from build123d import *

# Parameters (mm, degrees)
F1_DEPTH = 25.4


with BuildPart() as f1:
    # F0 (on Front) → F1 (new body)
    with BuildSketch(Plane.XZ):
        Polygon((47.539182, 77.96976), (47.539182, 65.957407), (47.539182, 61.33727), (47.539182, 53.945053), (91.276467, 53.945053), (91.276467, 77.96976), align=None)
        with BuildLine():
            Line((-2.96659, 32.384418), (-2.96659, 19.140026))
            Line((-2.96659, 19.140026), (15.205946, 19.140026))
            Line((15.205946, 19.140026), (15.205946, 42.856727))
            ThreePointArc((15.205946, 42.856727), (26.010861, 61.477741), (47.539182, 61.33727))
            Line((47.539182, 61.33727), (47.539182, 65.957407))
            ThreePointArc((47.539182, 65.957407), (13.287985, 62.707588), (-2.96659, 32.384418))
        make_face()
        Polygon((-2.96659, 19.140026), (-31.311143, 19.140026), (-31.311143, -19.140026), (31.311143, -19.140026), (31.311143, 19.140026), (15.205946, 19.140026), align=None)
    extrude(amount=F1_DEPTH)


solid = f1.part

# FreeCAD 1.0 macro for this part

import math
import FreeCAD as App
import Part
import Sketcher

V = App.Vector
Q = App.Units.Quantity

doc = App.newDocument("Part")
body = doc.addObject("PartDesign::Body", "Body")

# Sketch on XZ plane
sketch1 = body.newObject("Sketcher::SketchObject", "Sketch")
sketch1.AttachmentSupport = (doc.getObject("XZ_Plane"), [""])
sketch1.MapMode = "FlatFace"
sketch1.addGeometry([
    Part.LineSegment(V(48, 78, 0), V(48, 66, 0)),  # 0
    Part.ArcOfCircle(Part.Circle(V(33, 32, 0), V(0, 0, 1), 36), math.radians(67), math.radians(180)),  # 1
    Part.LineSegment(V(-3, 32, 0), V(-3, 19, 0)),  # 2
    Part.LineSegment(V(-3, 19, 0), V(-31, 19, 0)),  # 3
    Part.LineSegment(V(-31, 19, 0), V(-31, -19, 0)),  # 4
    Part.LineSegment(V(-31, -19, 0), V(31, -19, 0)),  # 5
    Part.LineSegment(V(31, -19, 0), V(31, 19, 0)),  # 6
    Part.LineSegment(V(31, 19, 0), V(15, 19, 0)),  # 7
    Part.LineSegment(V(15, 19, 0), V(15, 43, 0)),  # 8
    Part.ArcOfCircle(Part.Circle(V(37, 43, 0), V(0, 0, 1), 21), math.radians(60), math.radians(180)),  # 9
    Part.LineSegment(V(48, 61, 0), V(48, 54, 0)),  # 10
    Part.LineSegment(V(48, 54, 0), V(91, 54, 0)),  # 11
    Part.LineSegment(V(91, 54, 0), V(91, 78, 0)),  # 12
    Part.LineSegment(V(91, 78, 0), V(48, 78, 0)),  # 13
], False)
sketch1.addConstraint([
    Sketcher.Constraint("Coincident", 0, 2, 1, 1),
    Sketcher.Constraint("Tangent", 1, 2, 2, 1),
    Sketcher.Constraint("Coincident", 2, 2, 3, 1),
    Sketcher.Constraint("Coincident", 3, 2, 4, 1),
    Sketcher.Constraint("Coincident", 4, 2, 5, 1),
    Sketcher.Constraint("Coincident", 5, 2, 6, 1),
    Sketcher.Constraint("Coincident", 6, 2, 7, 1),
    Sketcher.Constraint("Coincident", 7, 2, 8, 1),
    Sketcher.Constraint("Tangent", 8, 2, 9, 2),
    Sketcher.Constraint("Coincident", 9, 1, 10, 1),
    Sketcher.Constraint("Coincident", 10, 2, 11, 1),
    Sketcher.Constraint("Coincident", 11, 2, 12, 1),
    Sketcher.Constraint("Coincident", 12, 2, 13, 1),
    Sketcher.Constraint("Coincident", 13, 2, 0, 1),
    Sketcher.Constraint("Vertical", 0),
    Sketcher.Constraint("Vertical", 2),
    Sketcher.Constraint("Horizontal", 3),
    Sketcher.Constraint("Vertical", 4),
    Sketcher.Constraint("Horizontal", 5),
    Sketcher.Constraint("Vertical", 6),
    Sketcher.Constraint("Horizontal", 7),
    Sketcher.Constraint("Vertical", 8),
    Sketcher.Constraint("Vertical", 10),
    Sketcher.Constraint("Horizontal", 11),
    Sketcher.Constraint("Vertical", 12),
    Sketcher.Constraint("Horizontal", 13),
    Sketcher.Constraint("Symmetric", 3, 2, 5, 2, -1, 1),
    Sketcher.Constraint("Horizontal", 3, 2, 6, 2),
    Sketcher.Constraint("Vertical", 0, 2, 9, 1),
    Sketcher.Constraint("Radius", 1, 36.411468),
    Sketcher.Constraint("DistanceY", 8, 1, 8, 2, 23.716701),
    Sketcher.Constraint("Radius", 9, 21.448033),
    Sketcher.Constraint("DistanceY", 2, 2, 2, 1, 13.244392),
    Sketcher.Constraint("DistanceY", 4, 2, 4, 1, 38.280052),
    Sketcher.Constraint("DistanceX", 1, 3, 9, 3, 3.2091),
    Sketcher.Constraint("DistanceX", 3, 2, 3, 1, 28.344553),
    Sketcher.Constraint("DistanceX", 5, 1, 5, 2, 62.622286),
    Sketcher.Constraint("DistanceX", 11, 1, 11, 2, 43.737285),
    Sketcher.Constraint("DistanceY", 0, 2, 0, 1, 12.012353),
    Sketcher.Constraint("DistanceY", 10, 2, 10, 1, 7.392217),
    Sketcher.Constraint("DistanceY", 12, 1, 12, 2, 24.024707),
])
pad1 = body.newObject("PartDesign::Pad", "Pad")
pad1.Profile = sketch1
pad1.Length = Q("1 in")

doc.recompute()
